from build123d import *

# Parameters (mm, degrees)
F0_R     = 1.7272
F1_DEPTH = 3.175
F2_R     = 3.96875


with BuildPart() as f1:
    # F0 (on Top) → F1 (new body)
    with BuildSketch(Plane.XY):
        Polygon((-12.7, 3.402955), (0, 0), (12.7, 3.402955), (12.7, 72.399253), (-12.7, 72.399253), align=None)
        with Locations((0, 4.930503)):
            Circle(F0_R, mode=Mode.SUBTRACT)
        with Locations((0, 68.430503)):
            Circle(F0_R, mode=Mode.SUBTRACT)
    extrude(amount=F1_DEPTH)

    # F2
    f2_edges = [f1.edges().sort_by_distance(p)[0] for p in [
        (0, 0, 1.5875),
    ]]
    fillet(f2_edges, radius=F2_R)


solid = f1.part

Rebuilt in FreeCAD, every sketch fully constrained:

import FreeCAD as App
import Part
import Sketcher
from FreeCAD import Vector
Q = App.Units.Quantity


def edges_at(feature, points):
    """Names of the edges that pass closest to the given points."""
    edges = feature.Shape.Edges
    near = lambda p: min(range(len(edges)), key=lambda i: edges[i].distToShape(Part.Vertex(*p))[0])
    return sorted({f"Edge{near(p) + 1}" for p in points})

doc = App.newDocument("Part")
body = doc.addObject("PartDesign::Body", "Body")

sketch1 = body.newObject("Sketcher::SketchObject", "Sketch")
sketch1.AttachmentSupport = (doc.getObject("XY_Plane"), [""])
sketch1.MapMode = "FlatFace"
sketch1.addGeometry(Part.LineSegment(Vector(-12.7, 3.4, 0), Vector(0, 0, 0)), False)
sketch1.addGeometry(Part.LineSegment(Vector(0, 0, 0), Vector(12.7, 3.4, 0)), False)
sketch1.addGeometry(Part.LineSegment(Vector(12.7, 3.4, 0), Vector(12.7, 72.4, 0)), False)
sketch1.addGeometry(Part.LineSegment(Vector(12.7, 72.4, 0), Vector(-12.7, 72.4, 0)), False)
sketch1.addGeometry(Part.LineSegment(Vector(-12.7, 72.4, 0), Vector(-12.7, 3.4, 0)), False)
sketch1.addGeometry(Part.Circle(Vector(0, 4.9, 0), Vector(0, 0, 1), 1.7), False)
sketch1.addGeometry(Part.Circle(Vector(0, 68.4, 0), Vector(0, 0, 1), 1.7), False)
sketch1.addConstraint(Sketcher.Constraint("Coincident", 0, 2, 1, 1))
sketch1.addConstraint(Sketcher.Constraint("Coincident", 1, 2, 2, 1))
sketch1.addConstraint(Sketcher.Constraint("Coincident", 2, 2, 3, 1))
sketch1.addConstraint(Sketcher.Constraint("Coincident", 3, 2, 4, 1))
sketch1.addConstraint(Sketcher.Constraint("Coincident", 4, 2, 0, 1))
sketch1.addConstraint(Sketcher.Constraint("Vertical", 2))
sketch1.addConstraint(Sketcher.Constraint("Horizontal", 3))
sketch1.addConstraint(Sketcher.Constraint("Vertical", 4))
sketch1.addConstraint(Sketcher.Constraint("Coincident", 0, 2, -1, 1))
sketch1.addConstraint(Sketcher.Constraint("Equal", 5, 6))
sketch1.addConstraint(Sketcher.Constraint("Symmetric", 1, 2, 4, 2, -2))
sketch1.addConstraint(Sketcher.Constraint("PointOnObject", 5, 3, -2))
sketch1.addConstraint(Sketcher.Constraint("PointOnObject", 6, 3, -2))
sketch1.addConstraint(Sketcher.Constraint("DistanceX", 3, 2, 3, 1, Q("1 in")))
sketch1.addConstraint(Sketcher.Constraint("Diameter", 5, Q("0.136 in")))
sketch1.addConstraint(Sketcher.Constraint("Angle", 0, Q("-15.000001 deg")))
sketch1.addConstraint(Sketcher.Constraint("DistanceY", 5, 3, 6, 3, Q("2.5 in")))
sketch1.addConstraint(Sketcher.Constraint("DistanceY", 6, 3, 2, 2, Q("0.15625 in")))
sketch1.addConstraint(Sketcher.Constraint("DistanceY", 2, 1, 2, 2, Q("68.996298 mm")))
pad1 = body.newObject("PartDesign::Pad", "Pad")
pad1.Profile = sketch1
pad1.Length = Q("0.125 in")
doc.recompute()

fillet = body.newObject("PartDesign::Fillet", "Fillet")
fillet.Base = (pad1, edges_at(pad1, [(0, 0, 1.587)]))
fillet.Radius = Q("0.15625 in")

doc.recompute()
